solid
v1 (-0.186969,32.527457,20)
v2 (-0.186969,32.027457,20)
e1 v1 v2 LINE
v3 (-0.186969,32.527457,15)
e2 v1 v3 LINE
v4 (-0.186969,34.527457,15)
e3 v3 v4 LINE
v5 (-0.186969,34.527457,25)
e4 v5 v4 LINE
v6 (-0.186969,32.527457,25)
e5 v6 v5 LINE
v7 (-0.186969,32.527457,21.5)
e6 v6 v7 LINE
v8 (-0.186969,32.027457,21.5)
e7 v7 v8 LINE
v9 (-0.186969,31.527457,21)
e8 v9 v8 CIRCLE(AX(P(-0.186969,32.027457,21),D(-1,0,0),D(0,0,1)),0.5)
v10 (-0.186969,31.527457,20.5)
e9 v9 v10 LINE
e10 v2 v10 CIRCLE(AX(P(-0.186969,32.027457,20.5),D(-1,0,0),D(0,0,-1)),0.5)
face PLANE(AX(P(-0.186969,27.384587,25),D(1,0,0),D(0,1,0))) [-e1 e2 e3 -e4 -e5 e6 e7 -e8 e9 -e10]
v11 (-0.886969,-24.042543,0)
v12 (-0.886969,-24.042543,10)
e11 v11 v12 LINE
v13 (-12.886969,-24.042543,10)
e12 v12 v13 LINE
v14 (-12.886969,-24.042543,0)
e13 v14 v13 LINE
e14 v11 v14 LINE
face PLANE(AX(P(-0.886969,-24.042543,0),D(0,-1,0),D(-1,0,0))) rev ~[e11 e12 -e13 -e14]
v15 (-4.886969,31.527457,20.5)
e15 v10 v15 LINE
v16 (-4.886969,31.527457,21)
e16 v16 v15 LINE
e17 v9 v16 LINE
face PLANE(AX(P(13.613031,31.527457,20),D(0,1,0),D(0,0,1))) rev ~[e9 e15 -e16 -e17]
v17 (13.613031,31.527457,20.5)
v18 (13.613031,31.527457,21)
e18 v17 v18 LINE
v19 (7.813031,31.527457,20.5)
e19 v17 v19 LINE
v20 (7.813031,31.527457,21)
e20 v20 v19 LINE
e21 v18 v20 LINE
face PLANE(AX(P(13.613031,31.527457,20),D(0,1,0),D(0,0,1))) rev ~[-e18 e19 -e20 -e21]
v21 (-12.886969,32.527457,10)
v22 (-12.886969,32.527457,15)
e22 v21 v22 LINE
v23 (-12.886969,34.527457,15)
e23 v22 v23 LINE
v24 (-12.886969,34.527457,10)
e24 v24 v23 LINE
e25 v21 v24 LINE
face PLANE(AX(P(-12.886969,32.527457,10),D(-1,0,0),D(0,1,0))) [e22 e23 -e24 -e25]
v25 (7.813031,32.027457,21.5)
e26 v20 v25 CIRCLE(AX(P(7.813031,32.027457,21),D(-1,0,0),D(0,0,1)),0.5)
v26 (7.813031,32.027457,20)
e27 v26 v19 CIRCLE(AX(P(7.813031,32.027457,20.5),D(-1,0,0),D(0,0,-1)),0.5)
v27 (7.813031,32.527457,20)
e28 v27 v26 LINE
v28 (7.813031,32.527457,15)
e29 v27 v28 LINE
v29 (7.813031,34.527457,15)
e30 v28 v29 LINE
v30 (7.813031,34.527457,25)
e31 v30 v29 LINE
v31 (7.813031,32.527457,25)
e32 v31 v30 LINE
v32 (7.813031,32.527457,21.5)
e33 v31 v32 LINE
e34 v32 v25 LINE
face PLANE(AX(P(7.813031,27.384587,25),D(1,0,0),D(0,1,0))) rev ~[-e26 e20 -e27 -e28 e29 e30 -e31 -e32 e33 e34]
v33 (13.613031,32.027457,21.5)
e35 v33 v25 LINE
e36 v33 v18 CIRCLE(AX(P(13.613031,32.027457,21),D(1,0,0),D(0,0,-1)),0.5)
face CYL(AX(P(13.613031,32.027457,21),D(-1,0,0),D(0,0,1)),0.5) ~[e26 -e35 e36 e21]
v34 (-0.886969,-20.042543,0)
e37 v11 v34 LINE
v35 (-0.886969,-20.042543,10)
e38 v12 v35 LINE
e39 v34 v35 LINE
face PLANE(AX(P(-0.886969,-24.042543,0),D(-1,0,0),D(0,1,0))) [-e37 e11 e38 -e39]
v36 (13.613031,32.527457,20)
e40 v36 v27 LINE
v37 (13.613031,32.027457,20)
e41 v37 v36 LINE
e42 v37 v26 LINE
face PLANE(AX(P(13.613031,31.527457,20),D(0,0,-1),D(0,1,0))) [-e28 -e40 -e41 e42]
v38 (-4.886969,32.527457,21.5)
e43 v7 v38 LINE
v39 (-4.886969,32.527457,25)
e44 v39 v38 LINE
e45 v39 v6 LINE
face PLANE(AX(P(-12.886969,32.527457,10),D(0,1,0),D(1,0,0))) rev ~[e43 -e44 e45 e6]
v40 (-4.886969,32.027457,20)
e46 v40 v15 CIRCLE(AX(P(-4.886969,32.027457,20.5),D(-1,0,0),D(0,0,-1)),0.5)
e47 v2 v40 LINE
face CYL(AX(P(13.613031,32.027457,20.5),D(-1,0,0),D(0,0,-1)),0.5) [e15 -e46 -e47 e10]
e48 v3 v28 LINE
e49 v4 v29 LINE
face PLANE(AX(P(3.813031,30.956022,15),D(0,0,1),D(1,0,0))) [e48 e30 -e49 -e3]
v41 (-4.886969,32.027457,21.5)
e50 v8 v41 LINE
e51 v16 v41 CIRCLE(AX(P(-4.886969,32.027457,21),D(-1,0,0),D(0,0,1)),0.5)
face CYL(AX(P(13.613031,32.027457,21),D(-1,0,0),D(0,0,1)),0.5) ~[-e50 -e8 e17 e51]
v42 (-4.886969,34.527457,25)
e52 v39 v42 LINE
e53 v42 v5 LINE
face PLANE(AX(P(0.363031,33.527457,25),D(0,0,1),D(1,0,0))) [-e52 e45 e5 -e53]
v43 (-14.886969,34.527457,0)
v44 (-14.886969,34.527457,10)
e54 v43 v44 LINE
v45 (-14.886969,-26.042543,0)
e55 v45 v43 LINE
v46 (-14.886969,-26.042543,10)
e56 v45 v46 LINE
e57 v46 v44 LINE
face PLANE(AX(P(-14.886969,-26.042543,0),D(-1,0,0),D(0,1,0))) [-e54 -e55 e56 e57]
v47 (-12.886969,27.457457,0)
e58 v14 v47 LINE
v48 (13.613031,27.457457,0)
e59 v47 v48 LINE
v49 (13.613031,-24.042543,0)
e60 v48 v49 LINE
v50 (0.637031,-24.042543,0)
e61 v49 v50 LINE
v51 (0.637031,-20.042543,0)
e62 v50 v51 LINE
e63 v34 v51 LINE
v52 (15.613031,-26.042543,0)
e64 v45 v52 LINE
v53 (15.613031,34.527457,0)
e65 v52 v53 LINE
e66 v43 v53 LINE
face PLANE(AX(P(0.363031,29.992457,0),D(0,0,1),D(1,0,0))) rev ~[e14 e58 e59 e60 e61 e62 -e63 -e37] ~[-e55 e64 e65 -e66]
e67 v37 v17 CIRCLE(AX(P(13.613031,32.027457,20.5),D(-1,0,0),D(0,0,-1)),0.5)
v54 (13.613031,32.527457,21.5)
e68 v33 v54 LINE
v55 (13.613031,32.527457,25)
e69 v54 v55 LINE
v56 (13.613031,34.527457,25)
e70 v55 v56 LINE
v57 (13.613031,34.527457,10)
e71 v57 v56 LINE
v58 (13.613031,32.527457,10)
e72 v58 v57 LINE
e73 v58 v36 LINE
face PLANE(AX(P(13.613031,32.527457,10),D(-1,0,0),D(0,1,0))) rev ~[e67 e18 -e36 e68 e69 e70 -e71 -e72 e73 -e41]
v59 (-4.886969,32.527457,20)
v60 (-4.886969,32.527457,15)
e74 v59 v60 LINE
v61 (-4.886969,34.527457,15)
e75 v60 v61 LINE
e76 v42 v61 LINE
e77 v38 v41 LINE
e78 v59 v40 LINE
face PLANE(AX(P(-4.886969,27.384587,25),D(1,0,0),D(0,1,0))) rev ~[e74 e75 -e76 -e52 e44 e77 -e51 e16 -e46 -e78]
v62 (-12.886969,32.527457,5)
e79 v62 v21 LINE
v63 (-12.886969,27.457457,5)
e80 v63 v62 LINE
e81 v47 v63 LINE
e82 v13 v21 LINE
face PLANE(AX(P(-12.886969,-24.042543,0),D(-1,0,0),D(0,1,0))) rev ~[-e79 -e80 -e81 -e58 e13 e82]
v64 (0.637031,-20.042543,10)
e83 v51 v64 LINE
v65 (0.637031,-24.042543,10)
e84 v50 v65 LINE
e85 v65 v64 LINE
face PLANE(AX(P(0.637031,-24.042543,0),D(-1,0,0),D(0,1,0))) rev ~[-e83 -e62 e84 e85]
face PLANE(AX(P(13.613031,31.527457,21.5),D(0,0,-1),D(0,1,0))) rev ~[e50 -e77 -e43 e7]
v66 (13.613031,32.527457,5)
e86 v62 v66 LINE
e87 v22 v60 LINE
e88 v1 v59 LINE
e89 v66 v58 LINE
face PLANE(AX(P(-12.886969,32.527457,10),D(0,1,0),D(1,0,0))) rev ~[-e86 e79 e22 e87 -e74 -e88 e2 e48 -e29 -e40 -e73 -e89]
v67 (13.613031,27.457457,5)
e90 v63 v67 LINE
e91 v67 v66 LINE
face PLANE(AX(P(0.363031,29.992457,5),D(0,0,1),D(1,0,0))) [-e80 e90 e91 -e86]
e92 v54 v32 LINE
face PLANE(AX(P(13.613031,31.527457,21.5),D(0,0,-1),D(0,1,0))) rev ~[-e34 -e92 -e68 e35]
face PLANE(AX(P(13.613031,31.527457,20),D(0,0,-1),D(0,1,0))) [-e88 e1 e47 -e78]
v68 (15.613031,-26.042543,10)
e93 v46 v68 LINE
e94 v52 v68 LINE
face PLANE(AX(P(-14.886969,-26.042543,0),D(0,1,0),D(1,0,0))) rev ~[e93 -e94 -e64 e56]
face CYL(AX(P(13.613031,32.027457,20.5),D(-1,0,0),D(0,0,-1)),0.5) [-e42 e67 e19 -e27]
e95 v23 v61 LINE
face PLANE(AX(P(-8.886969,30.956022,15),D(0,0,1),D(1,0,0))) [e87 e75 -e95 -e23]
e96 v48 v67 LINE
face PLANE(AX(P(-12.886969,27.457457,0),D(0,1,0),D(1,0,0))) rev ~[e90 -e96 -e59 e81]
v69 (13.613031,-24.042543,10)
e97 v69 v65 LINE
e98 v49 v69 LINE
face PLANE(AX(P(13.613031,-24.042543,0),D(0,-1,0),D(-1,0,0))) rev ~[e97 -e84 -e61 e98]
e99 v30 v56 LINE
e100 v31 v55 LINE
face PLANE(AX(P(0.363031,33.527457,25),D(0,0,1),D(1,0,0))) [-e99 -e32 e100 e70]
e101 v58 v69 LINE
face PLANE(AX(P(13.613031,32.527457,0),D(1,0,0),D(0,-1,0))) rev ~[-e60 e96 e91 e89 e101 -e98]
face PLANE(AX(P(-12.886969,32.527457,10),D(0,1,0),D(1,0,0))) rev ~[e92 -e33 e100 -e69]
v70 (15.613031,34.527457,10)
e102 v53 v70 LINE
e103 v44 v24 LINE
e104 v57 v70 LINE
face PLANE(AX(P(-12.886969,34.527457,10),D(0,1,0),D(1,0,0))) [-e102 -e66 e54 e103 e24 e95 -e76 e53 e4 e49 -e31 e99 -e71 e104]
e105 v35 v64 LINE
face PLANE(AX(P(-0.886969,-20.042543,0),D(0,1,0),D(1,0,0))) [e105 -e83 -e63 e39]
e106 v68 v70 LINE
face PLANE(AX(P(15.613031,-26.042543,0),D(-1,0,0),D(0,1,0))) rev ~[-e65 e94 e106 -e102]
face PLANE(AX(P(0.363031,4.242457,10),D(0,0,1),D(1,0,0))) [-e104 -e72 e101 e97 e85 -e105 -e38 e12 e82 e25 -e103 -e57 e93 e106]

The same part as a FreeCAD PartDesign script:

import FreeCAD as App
import Part
import Sketcher
from FreeCAD import Vector
Q = App.Units.Quantity


def edges_at(feature, points):
    """Names of the edges that pass closest to the given points."""
    edges = feature.Shape.Edges
    near = lambda p: min(range(len(edges)), key=lambda i: edges[i].distToShape(Part.Vertex(*p))[0])
    return sorted({f"Edge{near(p) + 1}" for p in points})


def add_polygon(sketch, points):
    """Adds a closed chain of lines whose ends are joined by coincident constraints."""
    first, n = sketch.GeometryCount, len(points)
    for a, b in zip(points, points[1:] + points[:1]):
        sketch.addGeometry(Part.LineSegment(App.Vector(*a, 0), App.Vector(*b, 0)), False)
    for i in range(n):
        sketch.addConstraint(Sketcher.Constraint("Coincident", first + i, 2, first + (i + 1) % n, 1))

doc = App.newDocument("Part")
body = doc.addObject("PartDesign::Body", "Body")

# Sketch on XY plane
sketch1 = doc.addObject("Sketcher::SketchObject", "Sketch")
body.addObject(sketch1)
sketch1.AttachmentSupport = (doc.XY_Plane, [""])
sketch1.MapMode = "FlatFace"
add_polygon(sketch1, [(-14.9, 34.5), (-14.9, -26), (15.6, -26), (15.6, 34.5)])  # lines 0-3
add_polygon(sketch1, [(-12.9, -24), (-12.9, 32.5), (13.6, 32.5), (13.6, -24), (0.6, -24), (0.6, -20), (-0.9, -20), (-0.9, -24)])  # lines 4-11
sketch1.addConstraint([
    Sketcher.Constraint("Vertical", 0),
    Sketcher.Constraint("Horizontal", 1),
    Sketcher.Constraint("Vertical", 2),
    Sketcher.Constraint("Horizontal", 3),
    Sketcher.Constraint("Vertical", 4),
    Sketcher.Constraint("Horizontal", 5),
    Sketcher.Constraint("Vertical", 6),
    Sketcher.Constraint("Horizontal", 7),
    Sketcher.Constraint("Vertical", 8),
    Sketcher.Constraint("Horizontal", 9),
    Sketcher.Constraint("Vertical", 10),
    Sketcher.Constraint("Horizontal", 11),
    Sketcher.Constraint("Horizontal", 7, 2, 10, 2),
    Sketcher.Constraint("DistanceX", 11, 2, 11, 1, Q("12 mm")),
    Sketcher.Constraint("DistanceY", 8, 1, 8, 2, Q("4 mm")),
    Sketcher.Constraint("DistanceX", 1, 1, 1, 2, Q("30.5 mm")),
    Sketcher.Constraint("DistanceX", 5, 1, 5, 2, Q("26.5 mm")),
    Sketcher.Constraint("DistanceX", 3, 2, 4, 2, Q("2 mm")),
    Sketcher.Constraint("DistanceY", 4, 2, 3, 2, Q("2 mm")),
    Sketcher.Constraint("DistanceY", 1, 2, 6, 2, Q("2 mm")),
    Sketcher.Constraint("DistanceY", 0, 2, 0, 1, Q("60.57 mm")),
    Sketcher.Constraint("DistanceX", 7, 2, 7, 1, Q("12.976 mm")),
    Sketcher.Constraint("DistanceX", 0, 2, -1, 1, Q("14.886969 mm")),
    Sketcher.Constraint("DistanceY", 0, 2, -1, 1, Q("26.042543 mm")),
])
pad1 = doc.addObject("PartDesign::Pad", "Pad")
body.addObject(pad1)
pad1.Profile = sketch1
pad1.Length = 10

# Sketch on XY plane
sketch2 = doc.addObject("Sketcher::SketchObject", "Sketch001")
body.addObject(sketch2)
sketch2.AttachmentSupport = (doc.XY_Plane, [""])
sketch2.MapMode = "FlatFace"
add_polygon(sketch2, [(-13, 33), (-13, 27), (14, 27), (14, 33)])  # lines 0-3
sketch2.addConstraint([
    Sketcher.Constraint("Vertical", 0),
    Sketcher.Constraint("Horizontal", 1),
    Sketcher.Constraint("Vertical", 2),
    Sketcher.Constraint("Horizontal", 3),
    Sketcher.Constraint("DistanceX", 1, 1, 1, 2, Q("26.5 mm")),
    Sketcher.Constraint("DistanceY", 0, 2, 0, 1, Q("5.07 mm")),
    Sketcher.Constraint("DistanceX", 0, 2, -1, 1, Q("12.886969 mm")),
    Sketcher.Constraint("DistanceY", -1, 1, 0, 2, Q("27.457457 mm")),
])
pad2 = doc.addObject("PartDesign::Pad", "Pad001")
body.addObject(pad2)
pad2.Profile = sketch2
pad2.Length = 5

# Sketch on XY plane
sketch3 = doc.addObject("Sketcher::SketchObject", "Sketch002")
body.addObject(sketch3)
sketch3.AttachmentSupport = (doc.XY_Plane, [""])
sketch3.MapMode = "FlatFace"
sketch3.AttachmentOffset = App.Placement(Vector(0, 0, 10), App.Rotation())
add_polygon(sketch3, [(-12.9, 34.5), (-12.9, 32.5), (13.6, 32.5), (13.6, 34.5)])  # lines 0-3
sketch3.addConstraint([
    Sketcher.Constraint("Vertical", 0),
    Sketcher.Constraint("Horizontal", 1),
    Sketcher.Constraint("Vertical", 2),
    Sketcher.Constraint("Horizontal", 3),
    Sketcher.Constraint("DistanceY", 0, 2, 0, 1, Q("2 mm")),
    Sketcher.Constraint("DistanceX", 1, 1, 1, 2, Q("26.5 mm")),
    Sketcher.Constraint("DistanceX", 0, 2, -1, 1, Q("12.886969 mm")),
    Sketcher.Constraint("DistanceY", -1, 1, 0, 2, Q("32.527457 mm")),
])
pad3 = doc.addObject("PartDesign::Pad", "Pad002")
body.addObject(pad3)
pad3.Profile = sketch3
pad3.Length = 15

# Sketch on YZ plane
sketch4 = doc.addObject("Sketcher::SketchObject", "Sketch003")
body.addObject(sketch4)
sketch4.AttachmentSupport = (doc.YZ_Plane, [""])
sketch4.MapMode = "FlatFace"
sketch4.AttachmentOffset = App.Placement(Vector(0, 0, 13.613031), App.Rotation())
add_polygon(sketch4, [(31.5, 21.5), (31.5, 20), (32.5, 20), (32.5, 21.5)])  # lines 0-3
sketch4.addConstraint([
    Sketcher.Constraint("Vertical", 0),
    Sketcher.Constraint("Horizontal", 1),
    Sketcher.Constraint("Vertical", 2),
    Sketcher.Constraint("Horizontal", 3),
    Sketcher.Constraint("DistanceX", 1, 1, 1, 2, Q("1 mm")),
    Sketcher.Constraint("DistanceY", 0, 2, 0, 1, Q("1.5 mm")),
    Sketcher.Constraint("DistanceY", -1, 1, 0, 2, Q("20 mm")),
    Sketcher.Constraint("DistanceX", -1, 1, 0, 2, Q("31.527457 mm")),
])
pad4 = doc.addObject("PartDesign::Pad", "Pad003")
body.addObject(pad4)
pad4.Profile = sketch4
pad4.Length = 25.4
pad4.Reversed = True
doc.recompute()

fillet = doc.addObject("PartDesign::Fillet", "Fillet")
body.addObject(fillet)
fillet.Base = (pad4, edges_at(pad4, [(0.913, 31.527, 21.5), (0.913, 31.527, 20)]))
fillet.Radius = 0.5

# Sketch on XY plane
sketch5 = doc.addObject("Sketcher::SketchObject", "Sketch004")
body.addObject(sketch5)
sketch5.AttachmentSupport = (doc.XY_Plane, [""])
sketch5.MapMode = "FlatFace"
sketch5.AttachmentOffset = App.Placement(Vector(0, 0, 25), App.Rotation())
add_polygon(sketch5, [(-13, 35), (-13, 27), (-5, 27), (-5, 35)])  # lines 0-3
add_polygon(sketch5, [(0, 35), (0, 27), (8, 27), (8, 35)])  # lines 4-7
sketch5.addConstraint([
    Sketcher.Constraint("Vertical", 0),
    Sketcher.Constraint("Horizontal", 1),
    Sketcher.Constraint("Vertical", 2),
    Sketcher.Constraint("Horizontal", 3),
    Sketcher.Constraint("Vertical", 4),
    Sketcher.Constraint("Horizontal", 5),
    Sketcher.Constraint("Vertical", 6),
    Sketcher.Constraint("Horizontal", 7),
    Sketcher.Constraint("Horizontal", 1, 2, 4, 2),
    Sketcher.Constraint("Horizontal", 3, 2, 6, 2),
    Sketcher.Constraint("Equal", 3, 5),
    Sketcher.Constraint("DistanceX", 1, 1, 1, 2, Q("8 mm")),
    Sketcher.Constraint("DistanceX", 1, 2, 4, 2, Q("4.7 mm")),
    Sketcher.Constraint("DistanceY", 0, 2, 0, 1, Q("7.14287 mm")),
    Sketcher.Constraint("DistanceX", 0, 2, -1, 1, Q("12.886969 mm")),
    Sketcher.Constraint("DistanceY", -1, 1, 0, 2, Q("27.384587 mm")),
])
pocket1 = doc.addObject("PartDesign::Pocket", "Pocket")
body.addObject(pocket1)
pocket1.Profile = sketch5
pocket1.Length = 10

doc.recompute()
